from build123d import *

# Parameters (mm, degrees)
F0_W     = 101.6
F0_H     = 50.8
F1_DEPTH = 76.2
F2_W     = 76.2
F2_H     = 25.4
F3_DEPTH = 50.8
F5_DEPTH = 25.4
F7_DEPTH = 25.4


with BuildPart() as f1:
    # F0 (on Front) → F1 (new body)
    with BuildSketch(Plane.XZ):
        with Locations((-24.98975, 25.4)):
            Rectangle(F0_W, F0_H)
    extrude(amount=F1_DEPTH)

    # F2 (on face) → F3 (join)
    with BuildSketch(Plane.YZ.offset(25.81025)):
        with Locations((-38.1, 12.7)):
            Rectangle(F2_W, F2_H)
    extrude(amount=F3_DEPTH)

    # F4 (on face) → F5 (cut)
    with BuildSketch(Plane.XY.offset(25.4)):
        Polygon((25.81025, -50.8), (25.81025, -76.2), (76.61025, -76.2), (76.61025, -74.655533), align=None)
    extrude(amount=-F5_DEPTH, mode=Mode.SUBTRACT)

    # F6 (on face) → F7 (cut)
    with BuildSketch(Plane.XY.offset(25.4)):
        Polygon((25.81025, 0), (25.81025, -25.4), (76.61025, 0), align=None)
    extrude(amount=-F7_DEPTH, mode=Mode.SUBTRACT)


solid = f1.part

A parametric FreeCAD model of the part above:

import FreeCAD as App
import Part
import Sketcher
Q = App.Units.Quantity

doc = App.newDocument("Part")
body = doc.addObject("PartDesign::Body", "Body")

sketch1 = body.newObject("Sketcher::SketchObject", "Sketch")
sketch1.AttachmentSupport = (doc.getObject("XZ_Plane"), [""])
sketch1.MapMode = "FlatFace"
sketch1.addGeometry([
    Part.LineSegment(App.Vector(-75.78975, 50.8, 0), App.Vector(-75.78975, 0, 0)),
    Part.LineSegment(App.Vector(-75.78975, 0, 0), App.Vector(25.81025, 0, 0)),
    Part.LineSegment(App.Vector(25.81025, 0, 0), App.Vector(25.81025, 50.8, 0)),
    Part.LineSegment(App.Vector(25.81025, 50.8, 0), App.Vector(-75.78975, 50.8, 0)),
], False)
sketch1.addConstraint([
    Sketcher.Constraint("Coincident", 0, 2, 1, 1),
    Sketcher.Constraint("Coincident", 1, 2, 2, 1),
    Sketcher.Constraint("Coincident", 2, 2, 3, 1),
    Sketcher.Constraint("Coincident", 3, 2, 0, 1),
    Sketcher.Constraint("Vertical", 0),
    Sketcher.Constraint("Horizontal", 1),
    Sketcher.Constraint("Vertical", 2),
    Sketcher.Constraint("Horizontal", 3),
    Sketcher.Constraint("PointOnObject", 0, 2, -1),
    Sketcher.Constraint("DistanceX", 1, 1, 1, 2, Q("4 in")),
    Sketcher.Constraint("DistanceY", 0, 2, 0, 1, Q("2 in")),
    Sketcher.Constraint("DistanceX", 0, 2, -1, 1, 75.78975),
])
pad1 = body.newObject("PartDesign::Pad", "Pad")
pad1.Profile = sketch1
pad1.Length = Q("3 in")

sketch2 = body.newObject("Sketcher::SketchObject", "Sketch001")
sketch2.AttachmentSupport = (doc.getObject("YZ_Plane"), [""])
sketch2.MapMode = "FlatFace"
sketch2.AttachmentOffset = App.Placement(App.Vector(0, 0, 25.81025), App.Rotation())
sketch2.addGeometry([
    Part.LineSegment(App.Vector(-76.2, 25.4, 0), App.Vector(-76.2, 0, 0)),
    Part.LineSegment(App.Vector(-76.2, 0, 0), App.Vector(0, 0, 0)),
    Part.LineSegment(App.Vector(0, 0, 0), App.Vector(0, 25.4, 0)),
    Part.LineSegment(App.Vector(0, 25.4, 0), App.Vector(-76.2, 25.4, 0)),
], False)
sketch2.addConstraint([
    Sketcher.Constraint("Coincident", 0, 2, 1, 1),
    Sketcher.Constraint("Coincident", 1, 2, 2, 1),
    Sketcher.Constraint("Coincident", 2, 2, 3, 1),
    Sketcher.Constraint("Coincident", 3, 2, 0, 1),
    Sketcher.Constraint("Vertical", 0),
    Sketcher.Constraint("Horizontal", 1),
    Sketcher.Constraint("Vertical", 2),
    Sketcher.Constraint("Horizontal", 3),
    Sketcher.Constraint("Coincident", 1, 2, -1, 1),
    Sketcher.Constraint("DistanceX", 1, 1, 1, 2, Q("3 in")),
    Sketcher.Constraint("DistanceY", 0, 2, 0, 1, Q("1 in")),
])
pad2 = body.newObject("PartDesign::Pad", "Pad001")
pad2.Profile = sketch2
pad2.Length = Q("2 in")

sketch3 = body.newObject("Sketcher::SketchObject", "Sketch002")
sketch3.AttachmentSupport = (doc.getObject("XY_Plane"), [""])
sketch3.MapMode = "FlatFace"
sketch3.AttachmentOffset = App.Placement(App.Vector(0, 0, 1 * 25.4), App.Rotation())
sketch3.addGeometry([
    Part.LineSegment(App.Vector(25.81025, -50.8, 0), App.Vector(25.81025, -76.2, 0)),
    Part.LineSegment(App.Vector(25.81025, -76.2, 0), App.Vector(76.61025, -76.2, 0)),
    Part.LineSegment(App.Vector(76.61025, -76.2, 0), App.Vector(76.61025, -74.655533, 0)),
    Part.LineSegment(App.Vector(76.61025, -74.655533, 0), App.Vector(25.81025, -50.8, 0)),
], False)
sketch3.addConstraint([
    Sketcher.Constraint("Coincident", 0, 2, 1, 1),
    Sketcher.Constraint("Coincident", 1, 2, 2, 1),
    Sketcher.Constraint("Coincident", 2, 2, 3, 1),
    Sketcher.Constraint("Coincident", 3, 2, 0, 1),
    Sketcher.Constraint("Vertical", 0),
    Sketcher.Constraint("Horizontal", 1),
    Sketcher.Constraint("Vertical", 2),
    Sketcher.Constraint("DistanceX", 1, 1, 1, 2, Q("2 in")),
    Sketcher.Constraint("DistanceY", 0, 2, 0, 1, Q("1 in")),
    Sketcher.Constraint("DistanceY", 0, 2, -1, 1, Q("3 in")),
    Sketcher.Constraint("DistanceY", 2, 1, 2, 2, 1.544467),
    Sketcher.Constraint("DistanceX", -1, 1, 0, 2, 25.81025),
])
pocket1 = body.newObject("PartDesign::Pocket", "Pocket")
pocket1.Profile = sketch3
pocket1.Length = Q("1 in")

sketch4 = body.newObject("Sketcher::SketchObject", "Sketch003")
sketch4.AttachmentSupport = (doc.getObject("XY_Plane"), [""])
sketch4.MapMode = "FlatFace"
sketch4.AttachmentOffset = App.Placement(App.Vector(0, 0, 1 * 25.4), App.Rotation())
sketch4.addGeometry([
    Part.LineSegment(App.Vector(25.81025, 0, 0), App.Vector(25.81025, -25.4, 0)),
    Part.LineSegment(App.Vector(25.81025, -25.4, 0), App.Vector(76.61025, 0, 0)),
    Part.LineSegment(App.Vector(76.61025, 0, 0), App.Vector(25.81025, 0, 0)),
], False)
sketch4.addConstraint([
    Sketcher.Constraint("Coincident", 0, 2, 1, 1),
    Sketcher.Constraint("Coincident", 1, 2, 2, 1),
    Sketcher.Constraint("Coincident", 2, 2, 0, 1),
    Sketcher.Constraint("Vertical", 0),
    Sketcher.Constraint("Horizontal", 2),
    Sketcher.Constraint("PointOnObject", 1, 2, -1),
    Sketcher.Constraint("DistanceX", 2, 2, 2, 1, Q("2 in")),
    Sketcher.Constraint("DistanceY", 0, 2, 0, 1, Q("1 in")),
    Sketcher.Constraint("DistanceX", -1, 1, 0, 2, 25.81025),
])
pocket2 = body.newObject("PartDesign::Pocket", "Pocket001")
pocket2.Profile = sketch4
pocket2.Length = Q("1 in")

doc.recompute()
